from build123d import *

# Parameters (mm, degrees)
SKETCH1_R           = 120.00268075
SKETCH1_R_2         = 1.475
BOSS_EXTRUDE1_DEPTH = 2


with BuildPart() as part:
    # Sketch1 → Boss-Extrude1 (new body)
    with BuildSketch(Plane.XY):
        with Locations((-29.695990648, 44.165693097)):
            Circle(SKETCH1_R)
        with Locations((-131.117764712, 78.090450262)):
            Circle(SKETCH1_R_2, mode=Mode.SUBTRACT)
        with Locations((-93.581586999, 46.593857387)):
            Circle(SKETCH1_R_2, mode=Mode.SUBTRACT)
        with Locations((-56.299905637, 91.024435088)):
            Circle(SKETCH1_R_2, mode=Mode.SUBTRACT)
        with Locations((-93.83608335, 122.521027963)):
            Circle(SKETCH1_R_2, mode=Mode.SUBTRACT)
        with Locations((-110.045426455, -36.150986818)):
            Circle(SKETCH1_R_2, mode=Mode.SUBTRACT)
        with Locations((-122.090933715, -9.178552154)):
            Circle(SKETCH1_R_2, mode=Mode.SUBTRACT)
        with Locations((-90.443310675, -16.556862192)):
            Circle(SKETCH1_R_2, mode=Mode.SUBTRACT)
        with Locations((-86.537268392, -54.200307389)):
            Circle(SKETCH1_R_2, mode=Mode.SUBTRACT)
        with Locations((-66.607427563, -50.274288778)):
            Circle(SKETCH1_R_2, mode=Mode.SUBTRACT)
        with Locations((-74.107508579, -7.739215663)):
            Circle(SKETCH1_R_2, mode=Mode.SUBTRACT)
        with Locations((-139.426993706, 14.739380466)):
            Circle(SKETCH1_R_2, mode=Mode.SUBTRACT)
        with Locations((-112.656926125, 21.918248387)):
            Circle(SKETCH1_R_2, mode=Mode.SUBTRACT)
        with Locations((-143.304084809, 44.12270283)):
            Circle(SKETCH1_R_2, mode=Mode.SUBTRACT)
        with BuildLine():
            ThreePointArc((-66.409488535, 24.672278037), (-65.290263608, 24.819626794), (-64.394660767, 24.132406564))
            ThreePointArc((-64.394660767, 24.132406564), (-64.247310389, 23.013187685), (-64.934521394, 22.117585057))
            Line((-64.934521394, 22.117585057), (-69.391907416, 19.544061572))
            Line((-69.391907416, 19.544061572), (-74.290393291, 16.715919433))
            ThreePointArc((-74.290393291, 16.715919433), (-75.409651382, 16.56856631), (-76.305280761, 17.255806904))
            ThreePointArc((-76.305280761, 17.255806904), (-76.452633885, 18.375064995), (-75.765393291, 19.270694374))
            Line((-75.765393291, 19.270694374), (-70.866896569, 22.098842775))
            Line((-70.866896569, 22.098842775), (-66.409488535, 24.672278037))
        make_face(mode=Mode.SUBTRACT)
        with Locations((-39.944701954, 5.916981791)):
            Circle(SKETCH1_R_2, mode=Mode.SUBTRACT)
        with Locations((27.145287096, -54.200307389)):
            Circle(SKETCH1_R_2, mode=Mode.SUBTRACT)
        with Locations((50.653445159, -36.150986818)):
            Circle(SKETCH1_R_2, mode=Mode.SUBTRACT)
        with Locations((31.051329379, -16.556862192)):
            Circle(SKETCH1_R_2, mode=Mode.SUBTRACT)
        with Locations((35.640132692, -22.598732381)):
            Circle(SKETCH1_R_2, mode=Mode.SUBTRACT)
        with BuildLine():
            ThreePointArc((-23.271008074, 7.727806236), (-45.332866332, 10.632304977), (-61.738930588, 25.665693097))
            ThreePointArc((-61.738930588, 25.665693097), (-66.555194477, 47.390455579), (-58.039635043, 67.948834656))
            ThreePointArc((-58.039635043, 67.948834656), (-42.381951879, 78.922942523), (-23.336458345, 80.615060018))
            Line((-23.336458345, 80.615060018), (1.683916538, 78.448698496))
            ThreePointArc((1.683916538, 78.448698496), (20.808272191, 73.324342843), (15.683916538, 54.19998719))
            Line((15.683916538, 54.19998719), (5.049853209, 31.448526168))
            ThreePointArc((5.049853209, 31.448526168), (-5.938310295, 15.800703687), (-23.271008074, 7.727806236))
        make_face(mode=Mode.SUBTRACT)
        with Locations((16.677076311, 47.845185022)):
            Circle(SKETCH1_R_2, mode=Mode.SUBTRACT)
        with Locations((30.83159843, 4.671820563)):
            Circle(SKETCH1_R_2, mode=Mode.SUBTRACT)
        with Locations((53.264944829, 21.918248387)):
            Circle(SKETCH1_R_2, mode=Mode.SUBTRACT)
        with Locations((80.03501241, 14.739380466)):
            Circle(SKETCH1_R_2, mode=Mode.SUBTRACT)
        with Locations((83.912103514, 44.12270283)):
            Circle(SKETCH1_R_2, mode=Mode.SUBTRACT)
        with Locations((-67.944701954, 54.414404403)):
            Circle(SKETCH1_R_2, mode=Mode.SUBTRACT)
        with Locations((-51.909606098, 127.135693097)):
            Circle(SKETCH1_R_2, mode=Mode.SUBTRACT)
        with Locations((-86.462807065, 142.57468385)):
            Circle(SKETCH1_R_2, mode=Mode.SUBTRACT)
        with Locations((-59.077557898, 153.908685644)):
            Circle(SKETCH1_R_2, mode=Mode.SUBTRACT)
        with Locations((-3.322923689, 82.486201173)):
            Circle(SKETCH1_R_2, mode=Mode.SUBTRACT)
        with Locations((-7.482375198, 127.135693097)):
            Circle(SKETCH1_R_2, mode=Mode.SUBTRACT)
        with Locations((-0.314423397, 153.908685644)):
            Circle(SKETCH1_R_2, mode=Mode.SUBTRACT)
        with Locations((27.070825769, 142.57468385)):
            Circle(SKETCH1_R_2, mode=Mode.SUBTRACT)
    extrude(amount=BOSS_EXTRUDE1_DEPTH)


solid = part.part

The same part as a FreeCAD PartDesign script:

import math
import FreeCAD as App
import Part
import Sketcher
from FreeCAD import Vector
Q = App.Units.Quantity

doc = App.newDocument("Part")
body = doc.addObject("PartDesign::Body", "Body")

sketch1 = doc.addObject("Sketcher::SketchObject", "Sketch")
body.addObject(sketch1)
sketch1.AttachmentSupport = (doc.XY_Plane, [""])
sketch1.MapMode = "FlatFace"
sketch1.addGeometry([
    Part.Circle(Vector(-29.7, 44.2, 0), Vector(0, 0, 1), 120),
    Part.Circle(Vector(-110, -36.2, 0), Vector(0, 0, 1), 1.5),
    Part.Circle(Vector(-122.1, -9.2, 0), Vector(0, 0, 1), 1.5),
    Part.Circle(Vector(-90.4, -16.6, 0), Vector(0, 0, 1), 1.5),
    Part.Circle(Vector(-86.5, -54.2, 0), Vector(0, 0, 1), 1.5),
    Part.Circle(Vector(-66.6, -50.3, 0), Vector(0, 0, 1), 1.5),
    Part.Circle(Vector(-74.1, -7.7, 0), Vector(0, 0, 1), 1.5),
    Part.Circle(Vector(-139.4, 14.7, 0), Vector(0, 0, 1), 1.5),
    Part.Circle(Vector(-112.7, 21.9, 0), Vector(0, 0, 1), 1.5),
    Part.Circle(Vector(-143.3, 44.1, 0), Vector(0, 0, 1), 1.5),
    Part.Circle(Vector(-93.6, 46.6, 0), Vector(0, 0, 1), 1.5),
    Part.LineSegment(Vector(-70.9, 22.1, 0), Vector(-66.4, 24.7, 0)),
    Part.ArcOfCircle(Part.Circle(Vector(-65.7, 23.4, 0), Vector(0, 0, 1), 1.5), math.radians(30), math.radians(120)),
    Part.ArcOfCircle(Part.Circle(Vector(-65.7, 23.4, 0), Vector(0, 0, 1), 1.5), math.radians(-60), math.radians(30)),
    Part.LineSegment(Vector(-64.9, 22.1, 0), Vector(-69.4, 19.5, 0)),
    Part.LineSegment(Vector(-69.4, 19.5, 0), Vector(-74.3, 16.7, 0)),
    Part.ArcOfCircle(Part.Circle(Vector(-75, 18, 0), Vector(0, 0, 1), 1.5), math.radians(-150), math.radians(-60)),
    Part.ArcOfCircle(Part.Circle(Vector(-75, 18, 0), Vector(0, 0, 1), 1.5), math.radians(120), math.radians(210)),
    Part.LineSegment(Vector(-75.8, 19.3, 0), Vector(-70.9, 22.1, 0)),
    Part.Circle(Vector(-39.9, 5.9, 0), Vector(0, 0, 1), 1.5),
    Part.Circle(Vector(27.1, -54.2, 0), Vector(0, 0, 1), 1.5),
    Part.Circle(Vector(50.7, -36.2, 0), Vector(0, 0, 1), 1.5),
    Part.Circle(Vector(31.1, -16.6, 0), Vector(0, 0, 1), 1.5),
    Part.Circle(Vector(35.6, -22.6, 0), Vector(0, 0, 1), 1.5),
    Part.ArcOfCircle(Part.Circle(Vector(-29.7, 44.2, 0), Vector(0, 0, 1), 37), math.radians(-80), math.radians(-20)),
    Part.ArcOfCircle(Part.Circle(Vector(-29.7, 44.2, 0), Vector(0, 0, 1), 37), math.radians(-150), math.radians(-80)),
    Part.ArcOfCircle(Part.Circle(Vector(-29.7, 44.2, 0), Vector(0, 0, 1), 37), math.radians(140), math.radians(210)),
    Part.ArcOfCircle(Part.Circle(Vector(-29.7, 44.2, 0), Vector(0, 0, 1), 37), math.radians(80), math.radians(140)),
    Part.LineSegment(Vector(-23.3, 80.6, 0), Vector(1.7, 78.4, 0)),
    Part.ArcOfCircle(Part.Circle(Vector(8.7, 66.3, 0), Vector(0, 0, 1), 14), math.radians(-60), math.radians(120)),
    Part.LineSegment(Vector(15.7, 54.2, 0), Vector(5, 31.4, 0)),
    Part.Circle(Vector(16.7, 47.8, 0), Vector(0, 0, 1), 1.5),
    Part.Circle(Vector(30.8, 4.7, 0), Vector(0, 0, 1), 1.5),
    Part.Circle(Vector(53.3, 21.9, 0), Vector(0, 0, 1), 1.5),
    Part.Circle(Vector(80, 14.7, 0), Vector(0, 0, 1), 1.5),
    Part.Circle(Vector(83.9, 44.1, 0), Vector(0, 0, 1), 1.5),
    Part.Circle(Vector(-131.1, 78.1, 0), Vector(0, 0, 1), 1.5),
    Part.Circle(Vector(-67.9, 54.4, 0), Vector(0, 0, 1), 1.5),
    Part.Circle(Vector(-56.3, 91, 0), Vector(0, 0, 1), 1.5),
    Part.Circle(Vector(-93.8, 122.5, 0), Vector(0, 0, 1), 1.5),
    Part.Circle(Vector(-51.9, 127.1, 0), Vector(0, 0, 1), 1.5),
    Part.Circle(Vector(-86.5, 142.6, 0), Vector(0, 0, 1), 1.5),
    Part.Circle(Vector(-59.1, 153.9, 0), Vector(0, 0, 1), 1.5),
    Part.Circle(Vector(-3.3, 82.5, 0), Vector(0, 0, 1), 1.5),
    Part.Circle(Vector(-7.5, 127.1, 0), Vector(0, 0, 1), 1.5),
    Part.Circle(Vector(-0.3, 153.9, 0), Vector(0, 0, 1), 1.5),
    Part.Circle(Vector(27.1, 142.6, 0), Vector(0, 0, 1), 1.5),
], False)
sketch1.addConstraint([
    Sketcher.Constraint("Coincident", 11, 2, 12, 2),
    Sketcher.Constraint("Tangent", 12, 1, 13, 2),
    Sketcher.Constraint("Tangent", 13, 1, 14, 1),
    Sketcher.Constraint("Coincident", 14, 2, 15, 1),
    Sketcher.Constraint("Tangent", 15, 2, 16, 2),
    Sketcher.Constraint("Tangent", 16, 1, 17, 2),
    Sketcher.Constraint("Tangent", 17, 1, 18, 1),
    Sketcher.Constraint("Coincident", 18, 2, 11, 1),
    Sketcher.Constraint("Tangent", 24, 1, 25, 2),
    Sketcher.Constraint("Tangent", 25, 1, 26, 2),
    Sketcher.Constraint("Tangent", 26, 1, 27, 2),
    Sketcher.Constraint("Coincident", 27, 1, 28, 1),
    Sketcher.Constraint("Coincident", 28, 2, 29, 2),
    Sketcher.Constraint("Coincident", 29, 1, 30, 1),
    Sketcher.Constraint("Coincident", 30, 2, 24, 2),
    Sketcher.Constraint("Coincident", 24, 3, 0, 3),
    Sketcher.Constraint("Coincident", 26, 3, 0, 3),
    Sketcher.Constraint("Equal", 1, 2),
    Sketcher.Constraint("Equal", 2, 3),
    Sketcher.Constraint("Equal", 3, 4),
    Sketcher.Constraint("Equal", 4, 5),
    Sketcher.Constraint("Equal", 5, 6),
    Sketcher.Constraint("Equal", 6, 7),
    Sketcher.Constraint("Equal", 7, 8),
    Sketcher.Constraint("Equal", 8, 9),
    Sketcher.Constraint("Equal", 9, 10),
    Sketcher.Constraint("Equal", 12, 13),
    Sketcher.Constraint("Equal", 10, 16),
    Sketcher.Constraint("Equal", 16, 17),
    Sketcher.Constraint("Equal", 17, 19),
    Sketcher.Constraint("Equal", 19, 20),
    Sketcher.Constraint("Equal", 20, 21),
    Sketcher.Constraint("Equal", 21, 22),
    Sketcher.Constraint("Equal", 22, 23),
    Sketcher.Constraint("Equal", 26, 27),
    Sketcher.Constraint("Equal", 23, 31),
    Sketcher.Constraint("Equal", 31, 32),
    Sketcher.Constraint("Equal", 32, 33),
    Sketcher.Constraint("Equal", 33, 34),
    Sketcher.Constraint("Equal", 34, 35),
    Sketcher.Constraint("Equal", 35, 36),
    Sketcher.Constraint("Equal", 36, 37),
    Sketcher.Constraint("Equal", 37, 38),
    Sketcher.Constraint("Equal", 38, 39),
    Sketcher.Constraint("Equal", 39, 40),
    Sketcher.Constraint("Equal", 40, 41),
    Sketcher.Constraint("Equal", 41, 42),
    Sketcher.Constraint("Equal", 42, 43),
    Sketcher.Constraint("Equal", 43, 44),
    Sketcher.Constraint("Equal", 44, 45),
    Sketcher.Constraint("Equal", 45, 46),
    Sketcher.Constraint("Parallel", 15, 18),
    Sketcher.Constraint("Horizontal", 4, 3, 20, 3),
    Sketcher.Constraint("Horizontal", 1, 3, 21, 3),
    Sketcher.Constraint("Horizontal", 3, 3, 22, 3),
    Sketcher.Constraint("Horizontal", 8, 3, 33, 3),
    Sketcher.Constraint("Horizontal", 7, 3, 34, 3),
    Sketcher.Constraint("Horizontal", 9, 3, 35, 3),
    Sketcher.Constraint("Horizontal", 40, 3, 44, 3),
    Sketcher.Constraint("Horizontal", 42, 3, 45, 3),
    Sketcher.Constraint("Horizontal", 41, 3, 46, 3),
    Sketcher.Constraint("Equal", 28, 30),
    Sketcher.Constraint("Radius", 24, Q("37 mm")),
    Sketcher.Constraint("Radius", 29, Q("14 mm")),
    Sketcher.Constraint("Diameter", 1, Q("2.95 mm")),
    Sketcher.Constraint("Angle", 15, Q("-150 deg")),
    Sketcher.Constraint("DistanceX", 43, 3, 31, 3, Q("20 mm")),
    Sketcher.Constraint("DistanceX", 28, 2, 29, 3, Q("7 mm")),
    Sketcher.Constraint("DistanceX", 29, 3, 29, 1, Q("7 mm")),
    Sketcher.Constraint("Diameter", 0, Q("240.005361 mm")),
    Sketcher.Constraint("DistanceY", 24, 3, 40, 3, Q("82.97 mm")),
    Sketcher.Constraint("Radius", 12, Q("1.474956 mm")),
    Sketcher.Constraint("DistanceY", 4, 3, 0, 3, Q("98.366 mm")),
    Sketcher.Constraint("DistanceX", 1, 3, 5, 3, Q("43.437999 mm")),
    Sketcher.Constraint("DistanceX", 9, 3, 39, 3, Q("49.468001 mm")),
    Sketcher.Constraint("DistanceY", 41, 3, 42, 3, Q("11.334002 mm")),
    Sketcher.Constraint("DistanceX", 19, 3, -1, 1, Q("39.944702 mm")),
    Sketcher.Constraint("DistanceX", -1, 1, 32, 3, Q("30.831598 mm")),
    Sketcher.Constraint("DistanceX", 37, 3, -1, 1, Q("67.944702 mm")),
    Sketcher.Constraint("DistanceY", -1, 1, 43, 3, Q("82.486201 mm")),
    Sketcher.Constraint("DistanceY", -1, 1, 28, 2, Q("78.448698 mm")),
    Sketcher.Constraint("DistanceY", 5, 3, 1, 3, Q("14.123302 mm")),
    Sketcher.Constraint("DistanceY", 2, 3, 8, 3, Q("31.096801 mm")),
    Sketcher.Constraint("DistanceX", 8, 3, 1, 3, Q("2.6115 mm")),
    Sketcher.Constraint("DistanceX", 6, 3, 12, 3, Q("8.435498 mm")),
    Sketcher.Constraint("DistanceX", 3, 3, 12, 3, Q("24.7713 mm")),
    Sketcher.Constraint("DistanceX", 21, 3, 33, 3, Q("2.6115 mm")),
    Sketcher.Constraint("DistanceY", 8, 3, 36, 3, Q("56.172202 mm")),
    Sketcher.Constraint("DistanceX", 38, 3, 40, 3, Q("4.3903 mm")),
    Sketcher.Constraint("DistanceX", 41, 3, 40, 3, Q("34.553201 mm")),
    Sketcher.Constraint("DistanceX", 43, 3, 45, 3, Q("3.0085 mm")),
    Sketcher.Constraint("DistanceX", 44, 3, 46, 3, Q("34.553201 mm")),
    Sketcher.Constraint("DistanceY", 16, 3, 12, 1, Q("6.1391 mm")),
    Sketcher.Constraint("DistanceY", 16, 1, 17, 3, Q("0.7375 mm")),
    Sketcher.Constraint("DistanceY", 26, 1, 38, 3, Q("23.0756 mm")),
    Sketcher.Constraint("Distance", 14, Q("5.146971 mm")),
    Sketcher.Constraint("DistanceX", 0, 3, -1, 1, Q("29.695991 mm")),
    Sketcher.Constraint("DistanceX", 3, 3, -1, 1, Q("90.443311 mm")),
    Sketcher.Constraint("DistanceX", 4, 3, -1, 1, Q("86.537268 mm")),
    Sketcher.Constraint("DistanceY", 5, 3, -1, 1, Q("50.274289 mm")),
    Sketcher.Constraint("DistanceY", -1, 1, 7, 3, Q("14.73938 mm")),
    Sketcher.Constraint("DistanceY", -1, 1, 8, 3, Q("21.918248 mm")),
    Sketcher.Constraint("DistanceY", -1, 1, 12, 3, Q("23.394928 mm")),
    Sketcher.Constraint("DistanceY", -1, 1, 19, 3, Q("5.916982 mm")),
    Sketcher.Constraint("DistanceX", -1, 1, 22, 3, Q("31.051329 mm")),
    Sketcher.Constraint("DistanceY", -1, 1, 32, 3, Q("4.671821 mm")),
    Sketcher.Constraint("DistanceX", 11, 2, -1, 1, Q("66.409489 mm")),
    Sketcher.Constraint("DistanceX", 12, 1, -1, 1, Q("64.394661 mm")),
    Sketcher.Constraint("DistanceX", 13, 1, -1, 1, Q("64.934521 mm")),
    Sketcher.Constraint("DistanceX", 24, 1, -1, 1, Q("23.271008 mm")),
    Sketcher.Constraint("DistanceX", 25, 1, -1, 1, Q("61.738931 mm")),
    Sketcher.Constraint("DistanceX", 27, 1, -1, 1, Q("23.336458 mm")),
    Sketcher.Constraint("DistanceY", -1, 1, 27, 1, Q("80.61506 mm")),
    Sketcher.Constraint("DistanceY", 3, 3, 2, 3, Q("7.37831 mm")),
    Sketcher.Constraint("DistanceX", 1, 3, 4, 3, Q("23.508158 mm")),
    Sketcher.Constraint("DistanceY", 1, 3, 6, 3, Q("28.411771 mm")),
    Sketcher.Constraint("DistanceX", 7, 3, 2, 3, Q("17.33606 mm")),
    Sketcher.Constraint("DistanceX", 9, 3, 7, 3, Q("3.877091 mm")),
    Sketcher.Constraint("DistanceX", 9, 3, 8, 3, Q("30.647159 mm")),
    Sketcher.Constraint("DistanceY", 6, 3, 9, 3, Q("51.861918 mm")),
    Sketcher.Constraint("DistanceX", 8, 3, 10, 3, Q("19.075339 mm")),
    Sketcher.Constraint("DistanceY", 8, 3, 10, 3, Q("24.675609 mm")),
    Sketcher.Constraint("DistanceX", 19, 3, 20, 3, Q("67.089989 mm")),
    Sketcher.Constraint("DistanceX", 20, 3, 21, 3, Q("23.508158 mm")),
    Sketcher.Constraint("DistanceY", 23, 3, 22, 3, Q("6.04187 mm")),
    Sketcher.Constraint("DistanceX", 29, 3, 31, 3, Q("7.99316 mm")),
    Sketcher.Constraint("DistanceY", 26, 3, 31, 3, Q("3.679492 mm")),
    Sketcher.Constraint("DistanceX", 31, 3, 33, 3, Q("36.587869 mm")),
    Sketcher.Constraint("DistanceX", 23, 3, 34, 3, Q("44.39488 mm")),
    Sketcher.Constraint("DistanceX", 34, 3, 35, 3, Q("3.877091 mm")),
    Sketcher.Constraint("DistanceX", 33, 3, 35, 3, Q("30.647159 mm")),
    Sketcher.Constraint("DistanceX", 9, 3, 36, 3, Q("12.18632 mm")),
    Sketcher.Constraint("DistanceY", 37, 3, 38, 3, Q("36.610031 mm")),
    Sketcher.Constraint("DistanceY", 24, 3, 38, 3, Q("46.858742 mm")),
    Sketcher.Constraint("DistanceY", 10, 3, 39, 3, Q("75.927171 mm")),
    Sketcher.Constraint("DistanceY", 40, 3, 41, 3, Q("15.438991 mm")),
    Sketcher.Constraint("DistanceX", 42, 3, 40, 3, Q("7.167952 mm")),
    Sketcher.Constraint("DistanceX", 40, 3, 44, 3, Q("44.427231 mm")),
    Sketcher.Constraint("DistanceX", 44, 3, 43, 3, Q("4.159452 mm")),
    Sketcher.Constraint("DistanceX", 18, 2, 14, 2, Q("1.474989 mm")),
])
pad1 = doc.addObject("PartDesign::Pad", "Pad")
body.addObject(pad1)
pad1.Profile = sketch1
pad1.Length = 2

doc.recompute()
